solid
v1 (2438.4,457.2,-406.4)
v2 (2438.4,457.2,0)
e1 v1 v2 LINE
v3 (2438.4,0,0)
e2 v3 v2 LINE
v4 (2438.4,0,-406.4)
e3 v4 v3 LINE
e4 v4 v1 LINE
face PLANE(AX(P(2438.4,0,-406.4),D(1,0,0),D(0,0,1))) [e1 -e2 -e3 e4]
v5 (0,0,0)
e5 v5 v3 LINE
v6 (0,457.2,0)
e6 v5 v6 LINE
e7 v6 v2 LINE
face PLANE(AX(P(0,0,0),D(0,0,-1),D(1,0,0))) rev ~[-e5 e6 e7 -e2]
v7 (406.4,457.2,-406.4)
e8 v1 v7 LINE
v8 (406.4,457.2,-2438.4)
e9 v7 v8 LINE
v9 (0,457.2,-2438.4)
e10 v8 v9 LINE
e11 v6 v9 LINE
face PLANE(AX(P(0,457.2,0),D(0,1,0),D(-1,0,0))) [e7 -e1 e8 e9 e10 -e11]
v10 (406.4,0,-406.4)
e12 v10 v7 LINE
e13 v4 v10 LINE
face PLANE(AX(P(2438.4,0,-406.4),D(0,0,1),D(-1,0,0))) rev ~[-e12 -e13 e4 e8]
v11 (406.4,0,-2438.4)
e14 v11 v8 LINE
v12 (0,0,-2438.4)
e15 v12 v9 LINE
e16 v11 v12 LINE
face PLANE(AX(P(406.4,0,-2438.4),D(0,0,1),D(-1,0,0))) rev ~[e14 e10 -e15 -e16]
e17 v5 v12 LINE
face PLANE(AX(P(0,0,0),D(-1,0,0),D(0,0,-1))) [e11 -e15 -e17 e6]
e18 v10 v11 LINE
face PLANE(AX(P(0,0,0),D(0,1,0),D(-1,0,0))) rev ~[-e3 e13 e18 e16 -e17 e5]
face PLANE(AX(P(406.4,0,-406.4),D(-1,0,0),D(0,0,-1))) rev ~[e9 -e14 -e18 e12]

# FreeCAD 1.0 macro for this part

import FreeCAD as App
import Part
import Sketcher
Q = App.Units.Quantity


def add_polygon(sketch, points):
    """Adds a closed chain of lines whose ends are joined by coincident constraints."""
    first, n = sketch.GeometryCount, len(points)
    for a, b in zip(points, points[1:] + points[:1]):
        sketch.addGeometry(Part.LineSegment(App.Vector(*a, 0), App.Vector(*b, 0)), False)
    for i in range(n):
        sketch.addConstraint(Sketcher.Constraint("Coincident", first + i, 2, first + (i + 1) % n, 1))

doc = App.newDocument("Part")
params = doc.addObject("Spreadsheet::Sheet", "Params")
for row, (alias, value) in enumerate([
    ("sketch1_width", "96 in"),
    ("sketch1_width2", "16 in"),
    ("pad1_length", "18 in"),
], start=1):
    params.set(f"A{row}", alias)
    params.set(f"B{row}", "=" + value)
    params.setAlias(f"B{row}", alias)

body = doc.addObject("PartDesign::Body", "Body")

sketch1 = body.newObject("Sketcher::SketchObject", "Sketch")
sketch1.AttachmentSupport = (doc.getObject("XZ_Plane"), [""])
sketch1.MapMode = "FlatFace"
add_polygon(sketch1, [(0, -2438), (0, 0), (2438, 0), (2438, -406), (406, -406), (406, -2438)])
sketch1.addConstraint([
    Sketcher.Constraint("Vertical", 0),
    Sketcher.Constraint("Horizontal", 1),
    Sketcher.Constraint("Vertical", 2),
    Sketcher.Constraint("Horizontal", 3),
    Sketcher.Constraint("Vertical", 4),
    Sketcher.Constraint("Horizontal", 5),
    Sketcher.Constraint("Coincident", 0, 2, -1, 1),
    Sketcher.Constraint("Equal", 1, 0),
    Sketcher.Constraint("Equal", 5, 2),
    Sketcher.Constraint("DistanceX", 1, 1, 1, 2, Q("96 in")),
    Sketcher.Constraint("DistanceX", 5, 2, 5, 1, Q("16 in")),
])
sketch1.setExpression("Constraints[15]", "Params.sketch1_width")
sketch1.setExpression("Constraints[16]", "Params.sketch1_width2")
pad1 = body.newObject("PartDesign::Pad", "Pad")
pad1.Profile = sketch1
pad1.setExpression("Length", "Params.pad1_length")
pad1.Reversed = True

doc.recompute()
